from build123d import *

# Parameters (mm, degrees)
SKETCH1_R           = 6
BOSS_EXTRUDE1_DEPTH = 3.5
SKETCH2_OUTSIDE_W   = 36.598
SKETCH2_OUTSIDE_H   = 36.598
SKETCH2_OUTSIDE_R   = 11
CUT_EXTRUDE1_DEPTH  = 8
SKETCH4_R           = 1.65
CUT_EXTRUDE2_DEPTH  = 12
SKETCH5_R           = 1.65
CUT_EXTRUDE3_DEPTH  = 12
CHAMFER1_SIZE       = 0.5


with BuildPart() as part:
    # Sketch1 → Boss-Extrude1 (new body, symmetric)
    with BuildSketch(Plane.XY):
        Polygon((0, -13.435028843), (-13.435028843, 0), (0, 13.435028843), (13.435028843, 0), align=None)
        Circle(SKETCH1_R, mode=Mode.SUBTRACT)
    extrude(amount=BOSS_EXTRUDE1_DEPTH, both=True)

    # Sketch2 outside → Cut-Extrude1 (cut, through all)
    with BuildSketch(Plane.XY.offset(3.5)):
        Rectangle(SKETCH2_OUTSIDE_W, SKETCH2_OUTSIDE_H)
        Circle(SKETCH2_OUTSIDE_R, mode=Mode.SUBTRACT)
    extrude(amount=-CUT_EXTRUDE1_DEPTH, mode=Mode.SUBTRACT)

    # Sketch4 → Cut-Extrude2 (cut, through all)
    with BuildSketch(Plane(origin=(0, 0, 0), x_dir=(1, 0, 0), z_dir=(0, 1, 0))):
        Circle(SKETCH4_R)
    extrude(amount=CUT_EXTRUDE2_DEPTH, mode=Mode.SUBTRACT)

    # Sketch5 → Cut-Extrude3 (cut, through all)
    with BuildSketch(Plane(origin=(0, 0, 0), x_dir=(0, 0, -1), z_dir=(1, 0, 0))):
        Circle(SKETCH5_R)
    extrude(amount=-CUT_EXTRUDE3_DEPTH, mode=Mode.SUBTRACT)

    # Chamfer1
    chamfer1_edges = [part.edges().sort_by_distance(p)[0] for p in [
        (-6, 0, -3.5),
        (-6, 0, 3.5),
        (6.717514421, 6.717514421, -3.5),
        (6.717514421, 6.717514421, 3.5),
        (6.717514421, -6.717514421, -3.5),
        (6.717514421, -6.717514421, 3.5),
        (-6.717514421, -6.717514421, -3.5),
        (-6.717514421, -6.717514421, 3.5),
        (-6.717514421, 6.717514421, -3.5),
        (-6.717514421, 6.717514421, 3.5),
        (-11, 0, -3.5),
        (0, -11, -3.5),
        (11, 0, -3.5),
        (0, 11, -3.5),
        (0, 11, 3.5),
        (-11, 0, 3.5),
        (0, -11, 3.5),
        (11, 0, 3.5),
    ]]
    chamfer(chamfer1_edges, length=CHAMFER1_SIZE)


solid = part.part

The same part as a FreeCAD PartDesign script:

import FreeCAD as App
import Part
import Sketcher


def edges_at(feature, points):
    """Names of the edges that pass closest to the given points."""
    edges = feature.Shape.Edges
    near = lambda p: min(range(len(edges)), key=lambda i: edges[i].distToShape(Part.Vertex(*p))[0])
    return sorted({f"Edge{near(p) + 1}" for p in points})


def add_polygon(sketch, points):
    """Adds a closed chain of lines whose ends are joined by coincident constraints."""
    first, n = sketch.GeometryCount, len(points)
    for a, b in zip(points, points[1:] + points[:1]):
        sketch.addGeometry(Part.LineSegment(App.Vector(*a, 0), App.Vector(*b, 0)), False)
    for i in range(n):
        sketch.addConstraint(Sketcher.Constraint("Coincident", first + i, 2, first + (i + 1) % n, 1))

doc = App.newDocument("Part")
params = doc.addObject("Spreadsheet::Sheet", "Params")
for row, (alias, value) in enumerate([
    ("sketch1_diameter", "12 mm"),
    ("sketch1_length", "19 mm"),
    ("pad1_length", "7 mm"),
    ("sketch2_diameter", "22 mm"),
    ("sketch3_diameter", "3.3 mm"),
    ("sketch4_diameter", "3.3 mm"),
    ("chamfer_size", "0.5 mm"),
], start=1):
    params.set(f"A{row}", alias)
    params.set(f"B{row}", "=" + value)
    params.setAlias(f"B{row}", alias)

body = doc.addObject("PartDesign::Body", "Body")

sketch1 = doc.addObject("Sketcher::SketchObject", "Sketch")
body.addObject(sketch1)
sketch1.AttachmentSupport = (doc.XY_Plane, [""])
sketch1.MapMode = "FlatFace"
add_polygon(sketch1, [(-13, 0), (0, -13), (13, 0), (0, 13)])
sketch1.addGeometry(Part.Circle(App.Vector(0, 0, 0), App.Vector(0, 0, 1), 6), False)
sketch1.addConstraint([
    Sketcher.Constraint("Coincident", 4, 3, -1, 1),
    Sketcher.Constraint("Symmetric", 0, 2, 2, 2, -1, 1),
    Sketcher.Constraint("Symmetric", 1, 2, 3, 2, -1, 1),
    Sketcher.Constraint("PointOnObject", 0, 2, -2),
    Sketcher.Constraint("PointOnObject", 1, 2, -1),
    Sketcher.Constraint("Perpendicular", 0, 1),
    Sketcher.Constraint("Diameter", 4, 12.0),
    Sketcher.Constraint("Distance", 0, 19.0),
])
sketch1.setExpression("Constraints[10]", "Params.sketch1_diameter")
sketch1.setExpression("Constraints[11]", "Params.sketch1_length")
pad1 = doc.addObject("PartDesign::Pad", "Pad")
body.addObject(pad1)
pad1.Profile = sketch1
pad1.setExpression("Length", "Params.pad1_length")
pad1.Midplane = True

sketch2 = doc.addObject("Sketcher::SketchObject", "Sketch001")
body.addObject(sketch2)
sketch2.AttachmentSupport = (doc.XY_Plane, [""])
sketch2.MapMode = "FlatFace"
sketch2.AttachmentOffset = App.Placement(App.Vector(0, 0, 3.5), App.Rotation())
add_polygon(sketch2, [(-18, 18), (-18, -18), (18, -18), (18, 18)])
sketch2.addGeometry(Part.Circle(App.Vector(0, 0, 0), App.Vector(0, 0, 1), 11), False)
sketch2.addConstraint([
    Sketcher.Constraint("Vertical", 0),
    Sketcher.Constraint("Horizontal", 1),
    Sketcher.Constraint("Vertical", 2),
    Sketcher.Constraint("Horizontal", 3),
    Sketcher.Constraint("Coincident", 4, 3, -1, 1),
    Sketcher.Constraint("Symmetric", 0, 2, 2, 2, -1, 1),
    Sketcher.Constraint("Equal", 3, 0),
    Sketcher.Constraint("Diameter", 4, 22.0),
    Sketcher.Constraint("DistanceX", 1, 1, 1, 2, 36.598),
])
sketch2.setExpression("Constraints[11]", "Params.sketch2_diameter")
pocket1 = doc.addObject("PartDesign::Pocket", "Pocket")
body.addObject(pocket1)
pocket1.Profile = sketch2
pocket1.Type = "ThroughAll"

sketch3 = doc.addObject("Sketcher::SketchObject", "Sketch002")
body.addObject(sketch3)
sketch3.AttachmentSupport = (doc.XZ_Plane, [""])
sketch3.MapMode = "FlatFace"
sketch3.addGeometry(Part.Circle(App.Vector(0, 0, 0), App.Vector(0, 0, 1), 1.6), False)
sketch3.addConstraint([
    Sketcher.Constraint("Coincident", 0, 3, -1, 1),
    Sketcher.Constraint("Diameter", 0, 3.3),
])
sketch3.setExpression("Constraints[1]", "Params.sketch3_diameter")
pocket2 = doc.addObject("PartDesign::Pocket", "Pocket001")
body.addObject(pocket2)
pocket2.Profile = sketch3
pocket2.Type = "ThroughAll"

sketch4 = doc.addObject("Sketcher::SketchObject", "Sketch003")
body.addObject(sketch4)
sketch4.AttachmentSupport = (doc.YZ_Plane, [""])
sketch4.MapMode = "FlatFace"
sketch4.addGeometry(Part.Circle(App.Vector(0, 0, 0), App.Vector(0, 0, 1), 1.6), False)
sketch4.addConstraint([
    Sketcher.Constraint("Coincident", 0, 3, -1, 1),
    Sketcher.Constraint("Diameter", 0, 3.3),
])
sketch4.setExpression("Constraints[1]", "Params.sketch4_diameter")
pocket3 = doc.addObject("PartDesign::Pocket", "Pocket002")
body.addObject(pocket3)
pocket3.Profile = sketch4
pocket3.Type = "ThroughAll"
doc.recompute()

chamfer = doc.addObject("PartDesign::Chamfer", "Chamfer")
body.addObject(chamfer)
chamfer.Base = (pocket3, edges_at(pocket3, [
    (-6, 0, -3.5),
    (-6, 0, 3.5),
    (6.718, 6.718, -3.5),
    (6.718, 6.718, 3.5),
    (6.718, -6.718, -3.5),
    (6.718, -6.718, 3.5),
    (-6.718, -6.718, -3.5),
    (-6.718, -6.718, 3.5),
    (-6.718, 6.718, -3.5),
    (-6.718, 6.718, 3.5),
    (-11, 0, -3.5),
    (0, -11, -3.5),
    (11, 0, -3.5),
    (0, 11, -3.5),
    (0, 11, 3.5),
    (-11, 0, 3.5),
    (0, -11, 3.5),
    (11, 0, 3.5),
]))
chamfer.setExpression("Size", "Params.chamfer_size")

doc.recompute()
